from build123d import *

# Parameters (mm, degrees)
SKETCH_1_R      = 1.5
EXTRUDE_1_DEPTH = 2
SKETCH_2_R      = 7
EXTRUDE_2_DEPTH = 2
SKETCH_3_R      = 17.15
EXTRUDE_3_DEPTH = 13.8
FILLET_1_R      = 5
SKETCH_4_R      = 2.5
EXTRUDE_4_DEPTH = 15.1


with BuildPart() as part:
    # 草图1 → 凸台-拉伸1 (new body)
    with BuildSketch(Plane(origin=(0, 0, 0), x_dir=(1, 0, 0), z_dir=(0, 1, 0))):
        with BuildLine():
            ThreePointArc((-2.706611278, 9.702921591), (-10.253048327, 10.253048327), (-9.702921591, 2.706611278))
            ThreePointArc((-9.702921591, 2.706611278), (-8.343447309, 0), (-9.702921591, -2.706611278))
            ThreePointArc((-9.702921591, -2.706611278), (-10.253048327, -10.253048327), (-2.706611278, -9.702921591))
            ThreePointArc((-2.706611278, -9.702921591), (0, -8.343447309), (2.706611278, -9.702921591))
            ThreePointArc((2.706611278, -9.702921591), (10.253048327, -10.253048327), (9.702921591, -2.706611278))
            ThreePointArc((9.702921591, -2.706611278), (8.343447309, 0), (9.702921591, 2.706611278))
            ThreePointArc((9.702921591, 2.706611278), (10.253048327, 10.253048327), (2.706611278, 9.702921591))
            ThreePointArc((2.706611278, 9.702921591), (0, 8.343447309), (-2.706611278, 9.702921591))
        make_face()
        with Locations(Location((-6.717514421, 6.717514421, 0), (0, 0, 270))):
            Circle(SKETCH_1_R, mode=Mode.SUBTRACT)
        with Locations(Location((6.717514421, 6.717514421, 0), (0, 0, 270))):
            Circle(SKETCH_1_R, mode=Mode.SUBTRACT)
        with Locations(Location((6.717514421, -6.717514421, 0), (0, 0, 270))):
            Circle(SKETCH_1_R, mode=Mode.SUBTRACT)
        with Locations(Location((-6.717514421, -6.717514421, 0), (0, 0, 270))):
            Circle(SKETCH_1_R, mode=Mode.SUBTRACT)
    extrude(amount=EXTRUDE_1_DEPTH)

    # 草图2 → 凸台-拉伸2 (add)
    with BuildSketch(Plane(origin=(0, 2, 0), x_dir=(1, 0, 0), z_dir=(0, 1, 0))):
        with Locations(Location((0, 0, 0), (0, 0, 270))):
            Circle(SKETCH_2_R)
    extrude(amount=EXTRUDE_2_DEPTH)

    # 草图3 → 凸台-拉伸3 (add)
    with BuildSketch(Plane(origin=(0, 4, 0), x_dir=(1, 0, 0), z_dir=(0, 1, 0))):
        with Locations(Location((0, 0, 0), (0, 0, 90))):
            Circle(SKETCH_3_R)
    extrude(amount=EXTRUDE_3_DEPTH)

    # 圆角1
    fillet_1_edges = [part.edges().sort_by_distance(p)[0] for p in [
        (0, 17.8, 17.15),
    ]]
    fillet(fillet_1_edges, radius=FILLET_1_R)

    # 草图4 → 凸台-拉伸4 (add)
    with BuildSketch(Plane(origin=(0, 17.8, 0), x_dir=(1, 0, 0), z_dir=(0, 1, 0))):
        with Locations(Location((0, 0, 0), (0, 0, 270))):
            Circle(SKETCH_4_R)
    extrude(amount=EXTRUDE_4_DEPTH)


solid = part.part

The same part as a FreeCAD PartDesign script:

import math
import FreeCAD as App
import Part
import Sketcher
from FreeCAD import Vector
Q = App.Units.Quantity


def edges_at(feature, points):
    """Names of the edges that pass closest to the given points."""
    edges = feature.Shape.Edges
    near = lambda p: min(range(len(edges)), key=lambda i: edges[i].distToShape(Part.Vertex(*p))[0])
    return sorted({f"Edge{near(p) + 1}" for p in points})

doc = App.newDocument("Part")
body = doc.addObject("PartDesign::Body", "Body")

# Sketch on XZ plane
sketch1 = body.newObject("Sketcher::SketchObject", "Sketch")
sketch1.AttachmentSupport = (doc.getObject("XZ_Plane"), [""])
sketch1.MapMode = "FlatFace"
sketch1.addGeometry(Part.ArcOfCircle(Part.Circle(Vector(-6.7, -6.7, 0), Vector(0, 0, 1), 5), math.radians(127), math.radians(323)), False)
sketch1.addGeometry(Part.ArcOfCircle(Part.Circle(Vector(-11.7, 0, 0), Vector(0, 0, 1), 3.4), math.radians(-53), math.radians(53)), False)
sketch1.addGeometry(Part.ArcOfCircle(Part.Circle(Vector(-6.7, 6.7, 0), Vector(0, 0, 1), 5), math.radians(37), math.radians(233)), False)
sketch1.addGeometry(Part.ArcOfCircle(Part.Circle(Vector(0, 11.7, 0), Vector(0, 0, 1), 3.4), math.radians(-143), math.radians(-37)), False)
sketch1.addGeometry(Part.ArcOfCircle(Part.Circle(Vector(6.7, 6.7, 0), Vector(0, 0, 1), 5), math.radians(-53), math.radians(143)), False)
sketch1.addGeometry(Part.ArcOfCircle(Part.Circle(Vector(11.7, 0, 0), Vector(0, 0, 1), 3.4), math.radians(127), math.radians(233)), False)
sketch1.addGeometry(Part.ArcOfCircle(Part.Circle(Vector(6.7, -6.7, 0), Vector(0, 0, 1), 5), math.radians(-143), math.radians(53)), False)
sketch1.addGeometry(Part.ArcOfCircle(Part.Circle(Vector(0, -11.7, 0), Vector(0, 0, 1), 3.4), math.radians(37), math.radians(143)), False)
sketch1.addGeometry(Part.Circle(Vector(-6.7, 6.7, 0), Vector(0, 0, 1), 1.5), False)
sketch1.addGeometry(Part.Circle(Vector(6.7, 6.7, 0), Vector(0, 0, 1), 1.5), False)
sketch1.addGeometry(Part.Circle(Vector(-6.7, -6.7, 0), Vector(0, 0, 1), 1.5), False)
sketch1.addGeometry(Part.Circle(Vector(6.7, -6.7, 0), Vector(0, 0, 1), 1.5), False)
sketch1.addConstraint(Sketcher.Constraint("Tangent", 0, 1, 1, 1))
sketch1.addConstraint(Sketcher.Constraint("Tangent", 1, 2, 2, 2))
sketch1.addConstraint(Sketcher.Constraint("Tangent", 2, 1, 3, 1))
sketch1.addConstraint(Sketcher.Constraint("Tangent", 3, 2, 4, 2))
sketch1.addConstraint(Sketcher.Constraint("Tangent", 4, 1, 5, 1))
sketch1.addConstraint(Sketcher.Constraint("Tangent", 5, 2, 6, 2))
sketch1.addConstraint(Sketcher.Constraint("Tangent", 6, 1, 7, 1))
sketch1.addConstraint(Sketcher.Constraint("Tangent", 7, 2, 0, 2))
sketch1.addConstraint(Sketcher.Constraint("Coincident", 8, 3, 2, 3))
sketch1.addConstraint(Sketcher.Constraint("Coincident", 9, 3, 4, 3))
sketch1.addConstraint(Sketcher.Constraint("Coincident", 10, 3, 0, 3))
sketch1.addConstraint(Sketcher.Constraint("Coincident", 11, 3, 6, 3))
sketch1.addConstraint(Sketcher.Constraint("Equal", 0, 2))
sketch1.addConstraint(Sketcher.Constraint("Equal", 1, 3))
sketch1.addConstraint(Sketcher.Constraint("Equal", 2, 4))
sketch1.addConstraint(Sketcher.Constraint("Equal", 3, 5))
sketch1.addConstraint(Sketcher.Constraint("Equal", 4, 6))
sketch1.addConstraint(Sketcher.Constraint("Equal", 5, 7))
sketch1.addConstraint(Sketcher.Constraint("Equal", 8, 9))
sketch1.addConstraint(Sketcher.Constraint("Equal", 9, 10))
sketch1.addConstraint(Sketcher.Constraint("Equal", 10, 11))
sketch1.addConstraint(Sketcher.Constraint("Symmetric", 0, 3, 4, 3, -1, 1))
sketch1.addConstraint(Sketcher.Constraint("Symmetric", 2, 3, 6, 3, -1, 1))
sketch1.addConstraint(Sketcher.Constraint("Symmetric", 2, 3, 4, 3, -2))
sketch1.addConstraint(Sketcher.Constraint("Diameter", 8, Q("3 mm")))
sketch1.addConstraint(Sketcher.Constraint("Radius", 0, Q("5 mm")))
sketch1.addConstraint(Sketcher.Constraint("DistanceX", 1, 3, 0, 3, Q("5 mm")))
sketch1.addConstraint(Sketcher.Constraint("DistanceY", 2, 3, 3, 3, Q("5 mm")))
sketch1.addConstraint(Sketcher.Constraint("Radius", 1, Q("3.374067 mm")))
pad1 = body.newObject("PartDesign::Pad", "Pad")
pad1.Profile = sketch1
pad1.Length = 2
pad1.Reversed = True

# Sketch on XZ plane
sketch2 = body.newObject("Sketcher::SketchObject", "Sketch001")
sketch2.AttachmentSupport = (doc.getObject("XZ_Plane"), [""])
sketch2.MapMode = "FlatFace"
sketch2.AttachmentOffset = App.Placement(Vector(0, 0, -2), App.Rotation())
sketch2.addGeometry(Part.Circle(Vector(0, 0, 0), Vector(0, 0, 1), 7), False)
sketch2.addConstraint(Sketcher.Constraint("Coincident", 0, 3, -1, 1))
sketch2.addConstraint(Sketcher.Constraint("Diameter", 0, Q("14 mm")))
pad2 = body.newObject("PartDesign::Pad", "Pad001")
pad2.Profile = sketch2
pad2.Length = 2
pad2.Reversed = True

# Sketch on XZ plane
sketch3 = body.newObject("Sketcher::SketchObject", "Sketch002")
sketch3.AttachmentSupport = (doc.getObject("XZ_Plane"), [""])
sketch3.MapMode = "FlatFace"
sketch3.AttachmentOffset = App.Placement(Vector(0, 0, -4), App.Rotation())
sketch3.addGeometry(Part.Circle(Vector(0, 0, 0), Vector(0, 0, 1), 17), False)
sketch3.addConstraint(Sketcher.Constraint("Coincident", 0, 3, -1, 1))
sketch3.addConstraint(Sketcher.Constraint("Diameter", 0, Q("34.3 mm")))
pad3 = body.newObject("PartDesign::Pad", "Pad002")
pad3.Profile = sketch3
pad3.Length = 13.8
pad3.Reversed = True
doc.recompute()

fillet = body.newObject("PartDesign::Fillet", "Fillet")
fillet.Base = (pad3, edges_at(pad3, [(0, 17.8, 17.15)]))
fillet.Radius = 5

# Sketch on XZ plane
sketch4 = body.newObject("Sketcher::SketchObject", "Sketch003")
sketch4.AttachmentSupport = (doc.getObject("XZ_Plane"), [""])
sketch4.MapMode = "FlatFace"
sketch4.AttachmentOffset = App.Placement(Vector(0, 0, -17.8), App.Rotation())
sketch4.addGeometry(Part.Circle(Vector(0, 0, 0), Vector(0, 0, 1), 2.5), False)
sketch4.addConstraint(Sketcher.Constraint("Coincident", 0, 3, -1, 1))
sketch4.addConstraint(Sketcher.Constraint("Diameter", 0, Q("5 mm")))
pad4 = body.newObject("PartDesign::Pad", "Pad003")
pad4.Profile = sketch4
pad4.Length = 15.1
pad4.Reversed = True

doc.recompute()
